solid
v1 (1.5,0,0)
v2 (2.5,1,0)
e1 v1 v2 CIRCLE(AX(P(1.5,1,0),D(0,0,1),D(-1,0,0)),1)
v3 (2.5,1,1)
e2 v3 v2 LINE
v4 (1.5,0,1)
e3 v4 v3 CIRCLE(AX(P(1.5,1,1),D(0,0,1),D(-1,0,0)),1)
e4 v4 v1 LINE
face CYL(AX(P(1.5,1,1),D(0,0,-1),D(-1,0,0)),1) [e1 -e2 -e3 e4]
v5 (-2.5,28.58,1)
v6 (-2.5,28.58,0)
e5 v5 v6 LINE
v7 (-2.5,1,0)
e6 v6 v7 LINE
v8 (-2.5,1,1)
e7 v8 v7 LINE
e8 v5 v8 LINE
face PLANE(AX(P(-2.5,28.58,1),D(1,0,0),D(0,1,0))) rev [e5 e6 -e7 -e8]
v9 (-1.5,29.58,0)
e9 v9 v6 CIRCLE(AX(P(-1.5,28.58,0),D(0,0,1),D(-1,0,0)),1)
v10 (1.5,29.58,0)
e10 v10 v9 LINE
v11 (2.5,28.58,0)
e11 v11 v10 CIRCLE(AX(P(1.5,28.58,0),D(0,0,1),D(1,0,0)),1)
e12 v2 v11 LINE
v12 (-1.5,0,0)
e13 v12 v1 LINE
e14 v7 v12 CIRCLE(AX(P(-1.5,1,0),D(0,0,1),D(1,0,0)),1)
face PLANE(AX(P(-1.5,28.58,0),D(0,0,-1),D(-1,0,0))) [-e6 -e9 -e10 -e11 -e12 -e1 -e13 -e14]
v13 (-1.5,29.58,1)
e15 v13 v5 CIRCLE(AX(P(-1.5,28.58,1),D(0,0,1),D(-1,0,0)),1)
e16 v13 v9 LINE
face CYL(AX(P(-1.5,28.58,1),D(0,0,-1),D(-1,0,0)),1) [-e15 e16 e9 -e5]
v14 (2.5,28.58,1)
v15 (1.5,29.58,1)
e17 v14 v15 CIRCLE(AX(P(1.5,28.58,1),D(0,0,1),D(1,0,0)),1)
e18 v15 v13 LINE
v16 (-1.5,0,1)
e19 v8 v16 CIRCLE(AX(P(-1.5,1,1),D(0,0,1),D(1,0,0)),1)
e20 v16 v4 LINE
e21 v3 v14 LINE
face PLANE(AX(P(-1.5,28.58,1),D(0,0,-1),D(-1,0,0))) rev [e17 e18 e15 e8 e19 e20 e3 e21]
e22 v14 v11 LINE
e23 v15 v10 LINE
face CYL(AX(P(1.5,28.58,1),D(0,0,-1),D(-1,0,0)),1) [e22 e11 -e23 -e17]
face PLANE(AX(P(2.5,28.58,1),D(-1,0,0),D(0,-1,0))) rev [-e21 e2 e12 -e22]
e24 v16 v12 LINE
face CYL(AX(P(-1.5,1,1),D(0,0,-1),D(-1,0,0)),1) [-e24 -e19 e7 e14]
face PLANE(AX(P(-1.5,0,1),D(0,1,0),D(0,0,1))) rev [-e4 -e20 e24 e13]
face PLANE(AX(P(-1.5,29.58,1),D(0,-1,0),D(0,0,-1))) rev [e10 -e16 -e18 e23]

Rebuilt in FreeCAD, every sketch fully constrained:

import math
import FreeCAD as App
import Part
import Sketcher
Q = App.Units.Quantity

doc = App.newDocument("Part")
body = doc.addObject("PartDesign::Body", "Body")

# Sketch on XY plane
sketch1 = doc.addObject("Sketcher::SketchObject", "Sketch")
body.addObject(sketch1)
sketch1.AttachmentSupport = (doc.XY_Plane, [""])
sketch1.MapMode = "FlatFace"
sketch1.addGeometry([
    Part.LineSegment(App.Vector(-2.5, 28.58, 0), App.Vector(-2.5, 1, 0)),  # 0
    Part.ArcOfCircle(Part.Circle(App.Vector(-1.5, 1, 0), App.Vector(0, 0, 1), 1), math.radians(-180), math.radians(-90)),  # 1
    Part.LineSegment(App.Vector(-1.5, 0, 0), App.Vector(1.5, 0, 0)),  # 2
    Part.ArcOfCircle(Part.Circle(App.Vector(1.5, 1, 0), App.Vector(0, 0, 1), 1), math.radians(-90), math.radians(0)),  # 3
    Part.LineSegment(App.Vector(2.5, 1, 0), App.Vector(2.5, 28.58, 0)),  # 4
    Part.ArcOfCircle(Part.Circle(App.Vector(1.5, 28.58, 0), App.Vector(0, 0, 1), 1), math.radians(0), math.radians(90)),  # 5
    Part.LineSegment(App.Vector(1.5, 29.58, 0), App.Vector(-1.5, 29.58, 0)),  # 6
    Part.ArcOfCircle(Part.Circle(App.Vector(-1.5, 28.58, 0), App.Vector(0, 0, 1), 1), math.radians(90), math.radians(180)),  # 7
], False)
sketch1.addConstraint([
    Sketcher.Constraint("Tangent", 0, 2, 1, 1),
    Sketcher.Constraint("Tangent", 1, 2, 2, 1),
    Sketcher.Constraint("Tangent", 2, 2, 3, 1),
    Sketcher.Constraint("Tangent", 3, 2, 4, 1),
    Sketcher.Constraint("Tangent", 4, 2, 5, 1),
    Sketcher.Constraint("Tangent", 5, 2, 6, 1),
    Sketcher.Constraint("Tangent", 6, 2, 7, 1),
    Sketcher.Constraint("Tangent", 7, 2, 0, 1),
    Sketcher.Constraint("Vertical", 0),
    Sketcher.Constraint("Horizontal", 2),
    Sketcher.Constraint("Vertical", 4),
    Sketcher.Constraint("Horizontal", 6),
    Sketcher.Constraint("Equal", 1, 3),
    Sketcher.Constraint("Equal", 3, 5),
    Sketcher.Constraint("Equal", 5, 7),
    Sketcher.Constraint("Symmetric", 1, 2, 2, 2, -1, 1),
    Sketcher.Constraint("Radius", 1, Q("1 mm")),
    Sketcher.Constraint("DistanceX", 2, 1, 2, 2, Q("3 mm")),
    Sketcher.Constraint("DistanceY", 0, 2, 0, 1, Q("27.58 mm")),
])
pad1 = doc.addObject("PartDesign::Pad", "Pad")
body.addObject(pad1)
pad1.Profile = sketch1
pad1.Length = 1

doc.recompute()
